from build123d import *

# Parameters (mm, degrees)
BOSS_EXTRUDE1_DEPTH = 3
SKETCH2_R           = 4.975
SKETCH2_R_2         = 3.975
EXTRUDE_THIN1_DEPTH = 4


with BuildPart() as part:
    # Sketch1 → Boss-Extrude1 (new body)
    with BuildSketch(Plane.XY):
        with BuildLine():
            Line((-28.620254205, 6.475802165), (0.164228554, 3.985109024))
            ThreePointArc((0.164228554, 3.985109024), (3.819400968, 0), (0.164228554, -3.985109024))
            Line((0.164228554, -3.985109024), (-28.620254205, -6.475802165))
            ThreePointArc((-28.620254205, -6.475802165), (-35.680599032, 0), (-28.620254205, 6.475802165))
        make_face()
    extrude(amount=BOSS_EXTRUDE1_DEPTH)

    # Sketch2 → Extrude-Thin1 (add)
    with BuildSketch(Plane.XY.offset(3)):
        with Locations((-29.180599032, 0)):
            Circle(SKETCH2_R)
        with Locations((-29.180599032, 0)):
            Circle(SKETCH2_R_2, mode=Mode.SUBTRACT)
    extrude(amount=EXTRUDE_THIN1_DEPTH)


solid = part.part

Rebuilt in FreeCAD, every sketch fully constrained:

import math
import FreeCAD as App
import Part
import Sketcher
from FreeCAD import Vector
Q = App.Units.Quantity

doc = App.newDocument("Part")
body = doc.addObject("PartDesign::Body", "Body")

# Sketch on XY plane
sketch1 = body.newObject("Sketcher::SketchObject", "Sketch")
sketch1.AttachmentSupport = (doc.getObject("XY_Plane"), [""])
sketch1.MapMode = "FlatFace"
sketch1.addGeometry(Part.LineSegment(Vector(0.164229, 3.985109, 0), Vector(-28.620254, 6.475802, 0)), False)
sketch1.addGeometry(Part.ArcOfCircle(Part.Circle(Vector(-29.180599, 0, 0), Vector(0, 0, 1), 6.5), math.radians(85.05457), math.radians(274.94543)), False)
sketch1.addGeometry(Part.LineSegment(Vector(-28.620254, -6.475802, 0), Vector(0.164229, -3.985109, 0)), False)
sketch1.addGeometry(Part.ArcOfCircle(Part.Circle(Vector(-0.180599, 0, 0), Vector(0, 0, 1), 4), math.radians(-85.05457), math.radians(85.05457)), False)
sketch1.addConstraint(Sketcher.Constraint("Tangent", 0, 2, 1, 1))
sketch1.addConstraint(Sketcher.Constraint("Tangent", 1, 2, 2, 1))
sketch1.addConstraint(Sketcher.Constraint("Tangent", 2, 2, 3, 1))
sketch1.addConstraint(Sketcher.Constraint("Tangent", 3, 2, 0, 1))
sketch1.addConstraint(Sketcher.Constraint("Symmetric", 0, 2, 1, 2, -1))
sketch1.addConstraint(Sketcher.Constraint("Radius", 3, Q("4 mm")))
sketch1.addConstraint(Sketcher.Constraint("Radius", 1, Q("6.5 mm")))
sketch1.addConstraint(Sketcher.Constraint("DistanceX", 1, 3, 3, 3, Q("29 mm")))
sketch1.addConstraint(Sketcher.Constraint("DistanceX", 1, 3, -1, 1, Q("29.180599 mm")))
pad1 = body.newObject("PartDesign::Pad", "Pad")
pad1.Profile = sketch1
pad1.Length = 3

# Sketch on XY plane
sketch2 = body.newObject("Sketcher::SketchObject", "Sketch001")
sketch2.AttachmentSupport = (doc.getObject("XY_Plane"), [""])
sketch2.MapMode = "FlatFace"
sketch2.AttachmentOffset = App.Placement(Vector(0, 0, 3), App.Rotation())
sketch2.addGeometry(Part.Circle(Vector(-29.180599, 0, 0), Vector(0, 0, 1), 4.975), False)
sketch2.addGeometry(Part.Circle(Vector(-29.180599, 0, 0), Vector(0, 0, 1), 3.975), False)
sketch2.addConstraint(Sketcher.Constraint("Coincident", 1, 3, 0, 3))
sketch2.addConstraint(Sketcher.Constraint("PointOnObject", 0, 3, -1))
sketch2.addConstraint(Sketcher.Constraint("Diameter", 0, Q("9.95 mm")))
sketch2.addConstraint(Sketcher.Constraint("Diameter", 1, Q("7.95 mm")))
sketch2.addConstraint(Sketcher.Constraint("DistanceX", 0, 3, -1, 1, Q("29.180599 mm")))
pad2 = body.newObject("PartDesign::Pad", "Pad001")
pad2.Profile = sketch2
pad2.Length = 4

doc.recompute()
